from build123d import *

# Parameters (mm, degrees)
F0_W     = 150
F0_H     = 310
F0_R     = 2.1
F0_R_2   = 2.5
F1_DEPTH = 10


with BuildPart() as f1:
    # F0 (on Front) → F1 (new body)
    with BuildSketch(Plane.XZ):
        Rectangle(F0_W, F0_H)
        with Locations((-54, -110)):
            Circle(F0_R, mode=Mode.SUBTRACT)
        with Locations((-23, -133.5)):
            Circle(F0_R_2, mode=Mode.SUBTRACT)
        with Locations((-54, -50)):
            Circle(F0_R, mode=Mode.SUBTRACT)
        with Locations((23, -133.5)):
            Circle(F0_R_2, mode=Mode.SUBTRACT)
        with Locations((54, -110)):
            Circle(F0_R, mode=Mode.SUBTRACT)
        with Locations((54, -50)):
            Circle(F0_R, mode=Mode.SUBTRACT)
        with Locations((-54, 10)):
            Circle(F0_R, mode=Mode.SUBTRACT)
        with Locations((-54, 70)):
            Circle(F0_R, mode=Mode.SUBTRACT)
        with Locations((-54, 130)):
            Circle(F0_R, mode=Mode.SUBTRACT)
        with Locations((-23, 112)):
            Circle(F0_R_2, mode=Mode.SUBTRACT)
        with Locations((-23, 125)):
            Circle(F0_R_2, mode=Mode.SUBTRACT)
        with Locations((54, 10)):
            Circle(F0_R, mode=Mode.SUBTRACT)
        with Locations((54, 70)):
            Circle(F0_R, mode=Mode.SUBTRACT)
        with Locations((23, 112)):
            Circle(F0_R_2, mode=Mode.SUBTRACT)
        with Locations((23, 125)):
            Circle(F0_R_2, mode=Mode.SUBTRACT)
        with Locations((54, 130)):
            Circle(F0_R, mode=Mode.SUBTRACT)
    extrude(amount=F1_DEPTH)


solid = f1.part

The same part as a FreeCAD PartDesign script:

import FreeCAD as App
import Part
import Sketcher

V = App.Vector
Q = App.Units.Quantity


def add_polygon(sketch, points):
    """Adds a closed chain of lines whose ends are joined by coincident constraints."""
    first, n = sketch.GeometryCount, len(points)
    for a, b in zip(points, points[1:] + points[:1]):
        sketch.addGeometry(Part.LineSegment(App.Vector(*a, 0), App.Vector(*b, 0)), False)
    for i in range(n):
        sketch.addConstraint(Sketcher.Constraint("Coincident", first + i, 2, first + (i + 1) % n, 1))

doc = App.newDocument("Part")
body = doc.addObject("PartDesign::Body", "Body")

sketch1 = body.newObject("Sketcher::SketchObject", "Sketch")
sketch1.AttachmentSupport = (doc.getObject("XZ_Plane"), [""])
sketch1.MapMode = "FlatFace"
add_polygon(sketch1, [(-75, 155), (-75, -155), (75, -155), (75, 155)])
sketch1.addGeometry(Part.Circle(V(-54, -110, 0), V(0, 0, 1), 2.1), False)
sketch1.addGeometry(Part.Circle(V(-23, -133.5, 0), V(0, 0, 1), 2.5), False)
sketch1.addGeometry(Part.Circle(V(-54, -50, 0), V(0, 0, 1), 2.1), False)
sketch1.addGeometry(Part.Circle(V(23, -133.5, 0), V(0, 0, 1), 2.5), False)
sketch1.addGeometry(Part.Circle(V(54, -110, 0), V(0, 0, 1), 2.1), False)
sketch1.addGeometry(Part.Circle(V(54, -50, 0), V(0, 0, 1), 2.1), False)
sketch1.addGeometry(Part.Circle(V(-54, 10, 0), V(0, 0, 1), 2.1), False)
sketch1.addGeometry(Part.Circle(V(-54, 70, 0), V(0, 0, 1), 2.1), False)
sketch1.addGeometry(Part.Circle(V(-54, 130, 0), V(0, 0, 1), 2.1), False)
sketch1.addGeometry(Part.Circle(V(-23, 112, 0), V(0, 0, 1), 2.5), False)
sketch1.addGeometry(Part.Circle(V(-23, 125, 0), V(0, 0, 1), 2.5), False)
sketch1.addGeometry(Part.Circle(V(54, 10, 0), V(0, 0, 1), 2.1), False)
sketch1.addGeometry(Part.Circle(V(23, 112, 0), V(0, 0, 1), 2.5), False)
sketch1.addGeometry(Part.Circle(V(23, 125, 0), V(0, 0, 1), 2.5), False)
sketch1.addGeometry(Part.Circle(V(54, 70, 0), V(0, 0, 1), 2.1), False)
sketch1.addGeometry(Part.Circle(V(54, 130, 0), V(0, 0, 1), 2.1), False)
sketch1.addConstraint([
    Sketcher.Constraint("Vertical", 0),
    Sketcher.Constraint("Horizontal", 1),
    Sketcher.Constraint("Vertical", 2),
    Sketcher.Constraint("Horizontal", 3),
    Sketcher.Constraint("Equal", 4, 6),
    Sketcher.Constraint("Equal", 5, 7),
    Sketcher.Constraint("Equal", 6, 8),
    Sketcher.Constraint("Equal", 8, 9),
    Sketcher.Constraint("Equal", 9, 10),
    Sketcher.Constraint("Equal", 10, 11),
    Sketcher.Constraint("Equal", 11, 12),
    Sketcher.Constraint("Equal", 7, 13),
    Sketcher.Constraint("Equal", 13, 14),
    Sketcher.Constraint("Equal", 12, 15),
    Sketcher.Constraint("Equal", 14, 16),
    Sketcher.Constraint("Equal", 16, 17),
    Sketcher.Constraint("Equal", 15, 18),
    Sketcher.Constraint("Equal", 18, 19),
    Sketcher.Constraint("Symmetric", 0, 2, 2, 2, -1, 1),
    Sketcher.Constraint("Symmetric", 5, 3, 7, 3, -2),
    Sketcher.Constraint("Symmetric", 4, 3, 8, 3, -2),
    Sketcher.Constraint("Symmetric", 6, 3, 9, 3, -2),
    Sketcher.Constraint("Symmetric", 10, 3, 15, 3, -2),
    Sketcher.Constraint("Symmetric", 13, 3, 16, 3, -2),
    Sketcher.Constraint("Symmetric", 14, 3, 17, 3, -2),
    Sketcher.Constraint("Symmetric", 11, 3, 18, 3, -2),
    Sketcher.Constraint("Symmetric", 12, 3, 19, 3, -2),
    Sketcher.Constraint("Vertical", 4, 3, 6, 3),
    Sketcher.Constraint("Vertical", 6, 3, 10, 3),
    Sketcher.Constraint("Vertical", 10, 3, 11, 3),
    Sketcher.Constraint("Vertical", 11, 3, 12, 3),
    Sketcher.Constraint("Vertical", 5, 3, 13, 3),
    Sketcher.Constraint("Vertical", 13, 3, 14, 3),
    Sketcher.Constraint("Diameter", 5, Q("5 mm")),
    Sketcher.Constraint("Diameter", 4, Q("4.2 mm")),
    Sketcher.Constraint("DistanceX", 1, 1, 1, 2, Q("150 mm")),
    Sketcher.Constraint("DistanceY", 0, 2, 0, 1, Q("310 mm")),
    Sketcher.Constraint("DistanceX", 4, 3, -1, 1, Q("54 mm")),
    Sketcher.Constraint("DistanceY", 4, 3, -1, 1, Q("110 mm")),
    Sketcher.Constraint("DistanceX", 5, 3, -1, 1, Q("23 mm")),
    Sketcher.Constraint("DistanceY", 6, 3, -1, 1, Q("50 mm")),
    Sketcher.Constraint("DistanceY", -1, 1, 10, 3, Q("10 mm")),
    Sketcher.Constraint("DistanceY", -1, 1, 11, 3, Q("70 mm")),
    Sketcher.Constraint("DistanceY", -1, 1, 12, 3, Q("130 mm")),
    Sketcher.Constraint("DistanceY", -1, 1, 13, 3, Q("112 mm")),
    Sketcher.Constraint("DistanceY", -1, 1, 14, 3, Q("125 mm")),
    Sketcher.Constraint("DistanceY", 5, 3, -1, 1, Q("133.5 mm")),
])
pad1 = body.newObject("PartDesign::Pad", "Pad")
pad1.Profile = sketch1
pad1.Length = 10

doc.recompute()
